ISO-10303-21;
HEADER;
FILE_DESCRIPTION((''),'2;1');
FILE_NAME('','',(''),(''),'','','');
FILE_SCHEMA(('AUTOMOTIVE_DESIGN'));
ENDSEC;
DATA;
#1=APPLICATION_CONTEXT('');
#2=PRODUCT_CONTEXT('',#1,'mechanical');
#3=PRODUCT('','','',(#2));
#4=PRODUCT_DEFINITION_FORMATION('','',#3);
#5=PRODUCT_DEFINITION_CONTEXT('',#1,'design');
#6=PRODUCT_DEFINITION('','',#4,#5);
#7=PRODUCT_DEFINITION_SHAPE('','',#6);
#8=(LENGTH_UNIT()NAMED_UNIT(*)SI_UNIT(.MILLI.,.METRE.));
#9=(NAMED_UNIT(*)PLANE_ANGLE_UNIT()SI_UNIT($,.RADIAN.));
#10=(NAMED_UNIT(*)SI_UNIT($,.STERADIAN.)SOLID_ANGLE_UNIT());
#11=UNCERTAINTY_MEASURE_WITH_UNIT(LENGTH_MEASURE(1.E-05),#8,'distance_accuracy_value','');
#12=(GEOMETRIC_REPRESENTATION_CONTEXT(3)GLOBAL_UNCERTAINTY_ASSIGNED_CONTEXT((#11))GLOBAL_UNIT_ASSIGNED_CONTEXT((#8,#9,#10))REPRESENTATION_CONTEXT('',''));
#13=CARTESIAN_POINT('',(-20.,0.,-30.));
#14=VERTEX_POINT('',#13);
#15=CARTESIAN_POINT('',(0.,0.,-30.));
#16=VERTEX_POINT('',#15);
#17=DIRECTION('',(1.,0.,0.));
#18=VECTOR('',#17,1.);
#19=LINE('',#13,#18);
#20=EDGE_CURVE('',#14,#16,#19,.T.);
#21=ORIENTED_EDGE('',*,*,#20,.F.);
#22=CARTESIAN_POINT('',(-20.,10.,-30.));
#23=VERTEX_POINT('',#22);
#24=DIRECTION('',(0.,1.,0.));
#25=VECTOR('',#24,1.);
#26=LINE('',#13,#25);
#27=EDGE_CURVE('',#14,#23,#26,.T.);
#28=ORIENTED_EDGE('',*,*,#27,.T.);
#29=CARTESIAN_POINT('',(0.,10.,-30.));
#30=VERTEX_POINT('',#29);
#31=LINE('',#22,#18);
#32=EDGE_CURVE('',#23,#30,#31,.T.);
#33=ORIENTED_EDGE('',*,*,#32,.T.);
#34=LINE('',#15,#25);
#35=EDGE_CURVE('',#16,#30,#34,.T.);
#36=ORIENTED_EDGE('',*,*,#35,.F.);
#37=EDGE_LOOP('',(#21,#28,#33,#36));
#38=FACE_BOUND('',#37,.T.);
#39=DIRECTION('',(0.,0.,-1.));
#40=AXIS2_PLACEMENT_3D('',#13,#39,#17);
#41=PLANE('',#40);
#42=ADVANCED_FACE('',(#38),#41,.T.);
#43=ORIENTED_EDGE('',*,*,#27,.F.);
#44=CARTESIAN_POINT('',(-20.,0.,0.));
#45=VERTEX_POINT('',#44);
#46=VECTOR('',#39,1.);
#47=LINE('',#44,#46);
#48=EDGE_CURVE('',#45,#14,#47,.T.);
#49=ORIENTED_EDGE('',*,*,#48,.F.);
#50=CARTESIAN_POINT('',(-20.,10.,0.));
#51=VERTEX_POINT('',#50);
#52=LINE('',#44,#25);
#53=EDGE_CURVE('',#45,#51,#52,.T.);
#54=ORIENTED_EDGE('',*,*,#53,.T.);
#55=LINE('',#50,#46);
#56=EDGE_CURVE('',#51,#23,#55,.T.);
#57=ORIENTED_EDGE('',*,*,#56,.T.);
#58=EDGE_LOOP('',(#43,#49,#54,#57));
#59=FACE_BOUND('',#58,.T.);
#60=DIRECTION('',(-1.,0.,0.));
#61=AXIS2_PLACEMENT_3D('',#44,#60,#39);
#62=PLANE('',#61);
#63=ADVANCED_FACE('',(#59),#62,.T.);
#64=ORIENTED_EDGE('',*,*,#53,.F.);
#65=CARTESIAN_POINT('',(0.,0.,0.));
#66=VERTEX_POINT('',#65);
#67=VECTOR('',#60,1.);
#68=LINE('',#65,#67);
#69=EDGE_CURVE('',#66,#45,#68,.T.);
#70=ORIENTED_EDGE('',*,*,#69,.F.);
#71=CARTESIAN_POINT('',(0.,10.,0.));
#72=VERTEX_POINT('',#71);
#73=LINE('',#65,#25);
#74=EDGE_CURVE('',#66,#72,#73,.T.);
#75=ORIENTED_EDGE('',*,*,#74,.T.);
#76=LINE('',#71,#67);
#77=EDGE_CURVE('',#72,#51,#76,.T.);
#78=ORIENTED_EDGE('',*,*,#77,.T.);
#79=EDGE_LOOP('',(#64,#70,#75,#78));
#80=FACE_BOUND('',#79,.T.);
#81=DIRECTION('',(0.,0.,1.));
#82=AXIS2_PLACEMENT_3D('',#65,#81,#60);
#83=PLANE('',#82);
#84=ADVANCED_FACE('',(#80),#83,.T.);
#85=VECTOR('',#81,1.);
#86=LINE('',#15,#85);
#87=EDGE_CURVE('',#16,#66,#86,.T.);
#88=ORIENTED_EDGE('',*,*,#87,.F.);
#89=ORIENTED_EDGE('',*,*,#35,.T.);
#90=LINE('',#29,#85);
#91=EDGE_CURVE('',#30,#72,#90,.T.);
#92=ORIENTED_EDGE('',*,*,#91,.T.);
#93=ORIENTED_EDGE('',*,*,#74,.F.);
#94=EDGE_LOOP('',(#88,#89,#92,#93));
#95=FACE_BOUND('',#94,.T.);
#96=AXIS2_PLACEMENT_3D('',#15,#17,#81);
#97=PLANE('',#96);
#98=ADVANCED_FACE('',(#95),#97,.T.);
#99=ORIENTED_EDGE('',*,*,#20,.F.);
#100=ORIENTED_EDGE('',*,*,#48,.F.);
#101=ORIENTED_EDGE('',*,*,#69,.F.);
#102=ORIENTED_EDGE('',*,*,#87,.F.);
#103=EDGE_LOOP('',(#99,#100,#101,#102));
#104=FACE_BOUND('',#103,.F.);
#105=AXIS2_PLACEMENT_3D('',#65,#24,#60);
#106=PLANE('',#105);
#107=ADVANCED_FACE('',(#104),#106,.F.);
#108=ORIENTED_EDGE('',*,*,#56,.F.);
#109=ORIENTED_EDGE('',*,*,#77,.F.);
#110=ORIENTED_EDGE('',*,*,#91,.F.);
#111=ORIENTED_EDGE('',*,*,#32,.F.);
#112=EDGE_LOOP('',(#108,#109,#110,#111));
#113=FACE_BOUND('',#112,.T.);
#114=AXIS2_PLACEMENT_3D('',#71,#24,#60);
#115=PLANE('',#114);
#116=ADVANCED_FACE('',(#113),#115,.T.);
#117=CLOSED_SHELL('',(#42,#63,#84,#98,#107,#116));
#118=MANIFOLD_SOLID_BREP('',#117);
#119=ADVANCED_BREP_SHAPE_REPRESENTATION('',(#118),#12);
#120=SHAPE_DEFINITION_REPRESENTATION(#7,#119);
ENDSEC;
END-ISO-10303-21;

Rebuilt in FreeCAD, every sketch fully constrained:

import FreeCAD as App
import Part
import Sketcher

V = App.Vector
Q = App.Units.Quantity


def add_polygon(sketch, points):
    """Adds a closed chain of lines whose ends are joined by coincident constraints."""
    first, n = sketch.GeometryCount, len(points)
    for a, b in zip(points, points[1:] + points[:1]):
        sketch.addGeometry(Part.LineSegment(App.Vector(*a, 0), App.Vector(*b, 0)), False)
    for i in range(n):
        sketch.addConstraint(Sketcher.Constraint("Coincident", first + i, 2, first + (i + 1) % n, 1))

doc = App.newDocument("Part")
body = doc.addObject("PartDesign::Body", "Body")

# Sketch on XZ plane
sketch1 = doc.addObject("Sketcher::SketchObject", "Sketch")
body.addObject(sketch1)
sketch1.AttachmentSupport = (doc.XZ_Plane, [""])
sketch1.MapMode = "FlatFace"
add_polygon(sketch1, [(-20, 0), (0, 0), (0, -30), (-20, -30)])  # lines 0-3
sketch1.addConstraint([
    Sketcher.Constraint("Horizontal", 0),
    Sketcher.Constraint("Vertical", 1),
    Sketcher.Constraint("Horizontal", 2),
    Sketcher.Constraint("Vertical", 3),
    Sketcher.Constraint("Coincident", 0, 2, -1, 1),
    Sketcher.Constraint("DistanceX", 0, 1, 0, 2, Q("20 mm")),
    Sketcher.Constraint("DistanceY", 1, 2, 1, 1, Q("30 mm")),
])
pad1 = doc.addObject("PartDesign::Pad", "Pad")
body.addObject(pad1)
pad1.Profile = sketch1
pad1.Length = 10
pad1.Reversed = True

doc.recompute()
